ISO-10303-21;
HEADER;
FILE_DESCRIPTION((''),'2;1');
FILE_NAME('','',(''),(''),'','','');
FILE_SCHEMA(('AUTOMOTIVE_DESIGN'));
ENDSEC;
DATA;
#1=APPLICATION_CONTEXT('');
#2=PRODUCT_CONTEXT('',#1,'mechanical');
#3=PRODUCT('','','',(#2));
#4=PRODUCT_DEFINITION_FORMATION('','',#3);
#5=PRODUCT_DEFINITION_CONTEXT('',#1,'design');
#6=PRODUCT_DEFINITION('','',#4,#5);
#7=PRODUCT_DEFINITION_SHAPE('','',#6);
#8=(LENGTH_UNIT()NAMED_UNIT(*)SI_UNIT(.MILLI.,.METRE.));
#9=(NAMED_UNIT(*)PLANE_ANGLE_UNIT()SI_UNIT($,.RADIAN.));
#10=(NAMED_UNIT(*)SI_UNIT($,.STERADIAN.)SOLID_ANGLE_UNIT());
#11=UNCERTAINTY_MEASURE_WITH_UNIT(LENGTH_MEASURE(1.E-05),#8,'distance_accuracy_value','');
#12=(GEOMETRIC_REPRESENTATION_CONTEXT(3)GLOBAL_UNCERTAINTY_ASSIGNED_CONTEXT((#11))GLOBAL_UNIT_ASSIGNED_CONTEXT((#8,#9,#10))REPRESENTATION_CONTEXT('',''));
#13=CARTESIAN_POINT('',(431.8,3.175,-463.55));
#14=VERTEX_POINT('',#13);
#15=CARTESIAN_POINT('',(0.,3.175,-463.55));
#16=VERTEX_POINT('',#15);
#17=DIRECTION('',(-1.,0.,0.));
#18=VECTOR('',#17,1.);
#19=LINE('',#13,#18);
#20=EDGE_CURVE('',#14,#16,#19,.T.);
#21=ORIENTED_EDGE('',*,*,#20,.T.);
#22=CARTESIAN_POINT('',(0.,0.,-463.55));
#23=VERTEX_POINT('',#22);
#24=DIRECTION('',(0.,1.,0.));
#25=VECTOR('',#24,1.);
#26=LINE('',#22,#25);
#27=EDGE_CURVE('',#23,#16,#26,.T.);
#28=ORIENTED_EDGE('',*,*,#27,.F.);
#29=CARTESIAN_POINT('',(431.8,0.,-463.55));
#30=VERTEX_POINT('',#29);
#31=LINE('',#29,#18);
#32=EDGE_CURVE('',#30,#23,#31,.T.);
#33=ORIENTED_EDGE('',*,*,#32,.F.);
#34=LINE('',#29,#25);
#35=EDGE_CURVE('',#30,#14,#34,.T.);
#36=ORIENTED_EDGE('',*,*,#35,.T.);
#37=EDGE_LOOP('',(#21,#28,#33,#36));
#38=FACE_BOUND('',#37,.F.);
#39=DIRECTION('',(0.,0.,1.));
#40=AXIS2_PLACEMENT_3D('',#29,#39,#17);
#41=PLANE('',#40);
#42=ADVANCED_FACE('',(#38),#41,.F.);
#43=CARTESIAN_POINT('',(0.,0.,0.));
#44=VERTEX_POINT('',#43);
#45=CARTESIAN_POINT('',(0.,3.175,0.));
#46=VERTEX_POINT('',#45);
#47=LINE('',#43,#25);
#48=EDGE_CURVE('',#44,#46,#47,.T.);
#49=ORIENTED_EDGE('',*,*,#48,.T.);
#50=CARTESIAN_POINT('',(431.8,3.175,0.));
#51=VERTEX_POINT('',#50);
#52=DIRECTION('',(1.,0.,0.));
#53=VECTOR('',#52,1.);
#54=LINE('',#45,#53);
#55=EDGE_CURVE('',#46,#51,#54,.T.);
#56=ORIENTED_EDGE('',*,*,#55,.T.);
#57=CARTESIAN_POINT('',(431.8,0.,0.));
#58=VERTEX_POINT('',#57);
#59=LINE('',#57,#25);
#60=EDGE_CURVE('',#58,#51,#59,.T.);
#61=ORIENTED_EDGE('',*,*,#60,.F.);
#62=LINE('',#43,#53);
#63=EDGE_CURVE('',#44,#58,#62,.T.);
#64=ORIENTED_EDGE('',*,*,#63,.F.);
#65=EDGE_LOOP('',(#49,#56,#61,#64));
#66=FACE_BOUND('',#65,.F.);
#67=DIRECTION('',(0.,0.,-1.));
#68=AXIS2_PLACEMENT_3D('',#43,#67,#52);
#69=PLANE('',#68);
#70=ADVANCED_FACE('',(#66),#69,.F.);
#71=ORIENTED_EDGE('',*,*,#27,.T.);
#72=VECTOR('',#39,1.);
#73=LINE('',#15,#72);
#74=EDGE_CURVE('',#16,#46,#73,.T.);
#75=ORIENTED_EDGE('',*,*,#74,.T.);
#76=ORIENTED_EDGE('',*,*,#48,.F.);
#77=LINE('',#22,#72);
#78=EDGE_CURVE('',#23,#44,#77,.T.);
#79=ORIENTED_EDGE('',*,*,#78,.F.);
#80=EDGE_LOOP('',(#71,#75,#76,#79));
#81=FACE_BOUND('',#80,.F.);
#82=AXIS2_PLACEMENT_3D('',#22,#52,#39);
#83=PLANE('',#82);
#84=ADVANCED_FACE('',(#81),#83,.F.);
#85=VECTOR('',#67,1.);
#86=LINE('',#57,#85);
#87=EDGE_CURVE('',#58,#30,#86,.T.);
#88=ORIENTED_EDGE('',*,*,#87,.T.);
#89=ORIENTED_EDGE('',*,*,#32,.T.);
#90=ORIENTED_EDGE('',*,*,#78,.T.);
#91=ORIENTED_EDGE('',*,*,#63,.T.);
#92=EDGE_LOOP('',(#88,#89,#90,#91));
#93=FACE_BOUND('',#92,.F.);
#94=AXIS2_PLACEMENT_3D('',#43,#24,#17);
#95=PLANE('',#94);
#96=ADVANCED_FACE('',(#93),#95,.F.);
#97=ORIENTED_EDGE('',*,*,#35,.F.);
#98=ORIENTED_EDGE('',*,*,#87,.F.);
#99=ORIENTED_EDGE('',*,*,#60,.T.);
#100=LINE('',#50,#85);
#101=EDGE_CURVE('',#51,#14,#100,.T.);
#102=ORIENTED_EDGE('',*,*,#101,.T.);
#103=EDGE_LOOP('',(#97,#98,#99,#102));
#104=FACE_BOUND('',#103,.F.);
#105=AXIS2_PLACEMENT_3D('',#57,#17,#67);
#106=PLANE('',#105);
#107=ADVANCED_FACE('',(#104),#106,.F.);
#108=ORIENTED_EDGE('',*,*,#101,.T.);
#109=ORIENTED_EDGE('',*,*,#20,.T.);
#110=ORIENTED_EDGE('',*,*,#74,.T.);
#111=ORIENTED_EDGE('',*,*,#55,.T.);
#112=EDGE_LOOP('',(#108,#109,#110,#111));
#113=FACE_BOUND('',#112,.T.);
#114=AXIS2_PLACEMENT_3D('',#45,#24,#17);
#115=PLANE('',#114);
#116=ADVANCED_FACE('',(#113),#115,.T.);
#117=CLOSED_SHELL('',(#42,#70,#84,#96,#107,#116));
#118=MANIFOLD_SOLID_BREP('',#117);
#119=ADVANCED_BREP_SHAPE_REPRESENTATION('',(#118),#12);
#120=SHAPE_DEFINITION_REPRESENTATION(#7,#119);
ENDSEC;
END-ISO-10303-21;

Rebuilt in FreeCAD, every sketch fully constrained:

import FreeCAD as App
import Part
import Sketcher
Q = App.Units.Quantity


def add_polygon(sketch, points):
    """Adds a closed chain of lines whose ends are joined by coincident constraints."""
    first, n = sketch.GeometryCount, len(points)
    for a, b in zip(points, points[1:] + points[:1]):
        sketch.addGeometry(Part.LineSegment(App.Vector(*a, 0), App.Vector(*b, 0)), False)
    for i in range(n):
        sketch.addConstraint(Sketcher.Constraint("Coincident", first + i, 2, first + (i + 1) % n, 1))

doc = App.newDocument("Part")
params = doc.addObject("Spreadsheet::Sheet", "Params")
for row, (alias, value) in enumerate([
    ("sketch1_width", "17 in"),
    ("sketch1_height", "18.25 in"),
    ("pad1_length", "0.125 in"),
], start=1):
    params.set(f"A{row}", alias)
    params.set(f"B{row}", "=" + value)
    params.setAlias(f"B{row}", alias)

body = doc.addObject("PartDesign::Body", "Body")

sketch1 = body.newObject("Sketcher::SketchObject", "Sketch")
sketch1.AttachmentSupport = (doc.getObject("XZ_Plane"), [""])
sketch1.MapMode = "FlatFace"
add_polygon(sketch1, [(0, -463.55), (0, 0), (431.8, 0), (431.8, -463.55)])
sketch1.addConstraint(Sketcher.Constraint("Vertical", 0))
sketch1.addConstraint(Sketcher.Constraint("Horizontal", 1))
sketch1.addConstraint(Sketcher.Constraint("Vertical", 2))
sketch1.addConstraint(Sketcher.Constraint("Horizontal", 3))
sketch1.addConstraint(Sketcher.Constraint("Coincident", 0, 2, -1, 1))
sketch1.addConstraint(Sketcher.Constraint("DistanceX", 1, 1, 1, 2, Q("17 in")))
sketch1.addConstraint(Sketcher.Constraint("DistanceY", 0, 1, 0, 2, Q("18.25 in")))
sketch1.setExpression("Constraints[9]", "Params.sketch1_width")
sketch1.setExpression("Constraints[10]", "Params.sketch1_height")
pad1 = body.newObject("PartDesign::Pad", "Pad")
pad1.Profile = sketch1
pad1.setExpression("Length", "Params.pad1_length")
pad1.Reversed = True

doc.recompute()
